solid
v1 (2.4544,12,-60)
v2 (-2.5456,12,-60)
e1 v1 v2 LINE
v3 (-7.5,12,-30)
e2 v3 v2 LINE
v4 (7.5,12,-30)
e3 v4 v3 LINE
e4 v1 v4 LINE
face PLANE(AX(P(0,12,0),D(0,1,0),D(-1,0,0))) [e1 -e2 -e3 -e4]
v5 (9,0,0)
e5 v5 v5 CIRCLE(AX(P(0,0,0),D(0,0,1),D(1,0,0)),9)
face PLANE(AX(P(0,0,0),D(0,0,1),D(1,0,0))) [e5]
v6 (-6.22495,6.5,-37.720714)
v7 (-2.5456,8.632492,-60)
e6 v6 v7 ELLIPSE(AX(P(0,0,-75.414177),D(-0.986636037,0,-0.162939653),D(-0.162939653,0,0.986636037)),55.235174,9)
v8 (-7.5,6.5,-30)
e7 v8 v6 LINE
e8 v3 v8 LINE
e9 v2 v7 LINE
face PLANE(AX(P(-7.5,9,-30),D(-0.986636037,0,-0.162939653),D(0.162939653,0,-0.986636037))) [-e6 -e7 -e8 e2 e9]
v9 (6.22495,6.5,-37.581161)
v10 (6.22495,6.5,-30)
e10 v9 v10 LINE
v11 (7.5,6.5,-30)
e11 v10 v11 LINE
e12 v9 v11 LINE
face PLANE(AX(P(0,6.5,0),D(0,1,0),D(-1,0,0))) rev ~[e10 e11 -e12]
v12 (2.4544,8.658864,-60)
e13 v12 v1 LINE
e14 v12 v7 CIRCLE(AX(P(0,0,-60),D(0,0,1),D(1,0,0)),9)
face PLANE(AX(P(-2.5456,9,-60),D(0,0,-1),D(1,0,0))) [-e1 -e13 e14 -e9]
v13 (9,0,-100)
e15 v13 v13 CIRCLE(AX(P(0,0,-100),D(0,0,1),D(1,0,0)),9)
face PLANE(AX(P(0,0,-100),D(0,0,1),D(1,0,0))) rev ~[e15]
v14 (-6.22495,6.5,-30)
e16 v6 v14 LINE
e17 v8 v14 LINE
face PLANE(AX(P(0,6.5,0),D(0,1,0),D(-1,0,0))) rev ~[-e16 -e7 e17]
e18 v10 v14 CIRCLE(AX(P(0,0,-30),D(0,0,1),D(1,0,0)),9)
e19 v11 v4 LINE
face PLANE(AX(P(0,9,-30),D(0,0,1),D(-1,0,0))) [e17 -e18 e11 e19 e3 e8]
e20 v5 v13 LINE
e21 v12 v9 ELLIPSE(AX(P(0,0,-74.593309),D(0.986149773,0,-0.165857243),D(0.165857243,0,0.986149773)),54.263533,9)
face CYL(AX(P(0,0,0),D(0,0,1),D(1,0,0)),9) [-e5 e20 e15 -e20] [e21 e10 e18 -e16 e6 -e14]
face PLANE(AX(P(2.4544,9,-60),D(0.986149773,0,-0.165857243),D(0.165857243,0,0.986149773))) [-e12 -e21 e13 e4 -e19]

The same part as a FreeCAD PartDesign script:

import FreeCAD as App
import Part
import Sketcher

V = App.Vector

doc = App.newDocument("Part")
params = doc.addObject("Spreadsheet::Sheet", "Params")
for row, (alias, value) in enumerate([
    ("sketch1_diameter", "18 mm"),
    ("pad1_length", "100 mm"),
    ("sketch2_width", "5 mm"),
    ("pad2_length", "3 mm"),
    ("pad2_length2", "2.5 mm"),
], start=1):
    params.set(f"A{row}", alias)
    params.set(f"B{row}", "=" + value)
    params.setAlias(f"B{row}", alias)

body = doc.addObject("PartDesign::Body", "Body")

# Sketch on XY plane
sketch1 = body.newObject("Sketcher::SketchObject", "Sketch")
sketch1.AttachmentSupport = (doc.getObject("XY_Plane"), [""])
sketch1.MapMode = "FlatFace"
sketch1.addGeometry(Part.Circle(V(0, 0, 0), V(0, 0, 1), 9), False)
sketch1.addConstraint([
    Sketcher.Constraint("Coincident", 0, 3, -1, 1),
    Sketcher.Constraint("Diameter", 0, 18.0),
])
sketch1.setExpression("Constraints[1]", "Params.sketch1_diameter")
pad1 = body.newObject("PartDesign::Pad", "Pad")
pad1.Profile = sketch1
pad1.setExpression("Length", "Params.pad1_length")
pad1.Reversed = True

# Sketch on XZ plane
sketch2 = body.newObject("Sketcher::SketchObject", "Sketch001")
sketch2.AttachmentSupport = (doc.getObject("XZ_Plane"), [""])
sketch2.MapMode = "FlatFace"
sketch2.AttachmentOffset = App.Placement(V(0, 0, -9), App.Rotation())
sketch2.addGeometry([
    Part.LineSegment(V(-7.5, -30, 0), V(7.5, -30, 0)),
    Part.LineSegment(V(7.5, -30, 0), V(2.4544, -60, 0)),
    Part.LineSegment(V(2.4544, -60, 0), V(-2.5456, -60, 0)),
    Part.LineSegment(V(-2.5456, -60, 0), V(-7.5, -30, 0)),
], False)
sketch2.addConstraint([
    Sketcher.Constraint("Coincident", 0, 2, 1, 1),
    Sketcher.Constraint("Coincident", 1, 2, 2, 1),
    Sketcher.Constraint("Coincident", 2, 2, 3, 1),
    Sketcher.Constraint("Coincident", 3, 2, 0, 1),
    Sketcher.Constraint("Horizontal", 0),
    Sketcher.Constraint("Horizontal", 2),
    Sketcher.Constraint("DistanceX", 2, 2, 2, 1, 5.0),
    Sketcher.Constraint("DistanceY", 0, 2, -1, 1, 30.0),
    Sketcher.Constraint("DistanceY", 1, 2, 0, 2, 30.0),
    Sketcher.Constraint("DistanceX", -1, 1, 0, 2, 7.5),
    Sketcher.Constraint("DistanceX", 3, 2, -1, 1, 7.5),
    Sketcher.Constraint("Distance", 1, 30.4213),
])
sketch2.setExpression("Constraints[6]", "Params.sketch2_width")
pad2 = body.newObject("PartDesign::Pad", "Pad001")
pad2.Profile = sketch2
pad2.Type = "TwoLengths"
pad2.setExpression("Length", "Params.pad2_length")
pad2.setExpression("Length2", "Params.pad2_length2")
pad2.Reversed = True

doc.recompute()
